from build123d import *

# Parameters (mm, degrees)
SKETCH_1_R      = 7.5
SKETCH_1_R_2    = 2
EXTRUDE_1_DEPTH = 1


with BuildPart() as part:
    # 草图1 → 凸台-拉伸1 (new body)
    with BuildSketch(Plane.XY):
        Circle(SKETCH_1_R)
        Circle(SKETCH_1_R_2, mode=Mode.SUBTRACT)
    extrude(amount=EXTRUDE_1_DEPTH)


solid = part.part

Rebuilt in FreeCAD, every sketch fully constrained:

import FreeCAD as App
import Part
import Sketcher
from FreeCAD import Vector

doc = App.newDocument("Part")
body = doc.addObject("PartDesign::Body", "Body")

# Sketch on XY plane
sketch1 = body.newObject("Sketcher::SketchObject", "Sketch")
sketch1.AttachmentSupport = (doc.getObject("XY_Plane"), [""])
sketch1.MapMode = "FlatFace"
sketch1.addGeometry([
    Part.Circle(Vector(0, 0, 0), Vector(0, 0, 1), 7.5),
    Part.Circle(Vector(0, 0, 0), Vector(0, 0, 1), 2),
], False)
sketch1.addConstraint([
    Sketcher.Constraint("Coincident", 0, 3, -1, 1),
    Sketcher.Constraint("Coincident", 1, 3, -1, 1),
    Sketcher.Constraint("Diameter", 0, 15.0),
    Sketcher.Constraint("Diameter", 1, 4.0),
])
pad1 = body.newObject("PartDesign::Pad", "Pad")
pad1.Profile = sketch1
pad1.Length = 1

doc.recompute()
